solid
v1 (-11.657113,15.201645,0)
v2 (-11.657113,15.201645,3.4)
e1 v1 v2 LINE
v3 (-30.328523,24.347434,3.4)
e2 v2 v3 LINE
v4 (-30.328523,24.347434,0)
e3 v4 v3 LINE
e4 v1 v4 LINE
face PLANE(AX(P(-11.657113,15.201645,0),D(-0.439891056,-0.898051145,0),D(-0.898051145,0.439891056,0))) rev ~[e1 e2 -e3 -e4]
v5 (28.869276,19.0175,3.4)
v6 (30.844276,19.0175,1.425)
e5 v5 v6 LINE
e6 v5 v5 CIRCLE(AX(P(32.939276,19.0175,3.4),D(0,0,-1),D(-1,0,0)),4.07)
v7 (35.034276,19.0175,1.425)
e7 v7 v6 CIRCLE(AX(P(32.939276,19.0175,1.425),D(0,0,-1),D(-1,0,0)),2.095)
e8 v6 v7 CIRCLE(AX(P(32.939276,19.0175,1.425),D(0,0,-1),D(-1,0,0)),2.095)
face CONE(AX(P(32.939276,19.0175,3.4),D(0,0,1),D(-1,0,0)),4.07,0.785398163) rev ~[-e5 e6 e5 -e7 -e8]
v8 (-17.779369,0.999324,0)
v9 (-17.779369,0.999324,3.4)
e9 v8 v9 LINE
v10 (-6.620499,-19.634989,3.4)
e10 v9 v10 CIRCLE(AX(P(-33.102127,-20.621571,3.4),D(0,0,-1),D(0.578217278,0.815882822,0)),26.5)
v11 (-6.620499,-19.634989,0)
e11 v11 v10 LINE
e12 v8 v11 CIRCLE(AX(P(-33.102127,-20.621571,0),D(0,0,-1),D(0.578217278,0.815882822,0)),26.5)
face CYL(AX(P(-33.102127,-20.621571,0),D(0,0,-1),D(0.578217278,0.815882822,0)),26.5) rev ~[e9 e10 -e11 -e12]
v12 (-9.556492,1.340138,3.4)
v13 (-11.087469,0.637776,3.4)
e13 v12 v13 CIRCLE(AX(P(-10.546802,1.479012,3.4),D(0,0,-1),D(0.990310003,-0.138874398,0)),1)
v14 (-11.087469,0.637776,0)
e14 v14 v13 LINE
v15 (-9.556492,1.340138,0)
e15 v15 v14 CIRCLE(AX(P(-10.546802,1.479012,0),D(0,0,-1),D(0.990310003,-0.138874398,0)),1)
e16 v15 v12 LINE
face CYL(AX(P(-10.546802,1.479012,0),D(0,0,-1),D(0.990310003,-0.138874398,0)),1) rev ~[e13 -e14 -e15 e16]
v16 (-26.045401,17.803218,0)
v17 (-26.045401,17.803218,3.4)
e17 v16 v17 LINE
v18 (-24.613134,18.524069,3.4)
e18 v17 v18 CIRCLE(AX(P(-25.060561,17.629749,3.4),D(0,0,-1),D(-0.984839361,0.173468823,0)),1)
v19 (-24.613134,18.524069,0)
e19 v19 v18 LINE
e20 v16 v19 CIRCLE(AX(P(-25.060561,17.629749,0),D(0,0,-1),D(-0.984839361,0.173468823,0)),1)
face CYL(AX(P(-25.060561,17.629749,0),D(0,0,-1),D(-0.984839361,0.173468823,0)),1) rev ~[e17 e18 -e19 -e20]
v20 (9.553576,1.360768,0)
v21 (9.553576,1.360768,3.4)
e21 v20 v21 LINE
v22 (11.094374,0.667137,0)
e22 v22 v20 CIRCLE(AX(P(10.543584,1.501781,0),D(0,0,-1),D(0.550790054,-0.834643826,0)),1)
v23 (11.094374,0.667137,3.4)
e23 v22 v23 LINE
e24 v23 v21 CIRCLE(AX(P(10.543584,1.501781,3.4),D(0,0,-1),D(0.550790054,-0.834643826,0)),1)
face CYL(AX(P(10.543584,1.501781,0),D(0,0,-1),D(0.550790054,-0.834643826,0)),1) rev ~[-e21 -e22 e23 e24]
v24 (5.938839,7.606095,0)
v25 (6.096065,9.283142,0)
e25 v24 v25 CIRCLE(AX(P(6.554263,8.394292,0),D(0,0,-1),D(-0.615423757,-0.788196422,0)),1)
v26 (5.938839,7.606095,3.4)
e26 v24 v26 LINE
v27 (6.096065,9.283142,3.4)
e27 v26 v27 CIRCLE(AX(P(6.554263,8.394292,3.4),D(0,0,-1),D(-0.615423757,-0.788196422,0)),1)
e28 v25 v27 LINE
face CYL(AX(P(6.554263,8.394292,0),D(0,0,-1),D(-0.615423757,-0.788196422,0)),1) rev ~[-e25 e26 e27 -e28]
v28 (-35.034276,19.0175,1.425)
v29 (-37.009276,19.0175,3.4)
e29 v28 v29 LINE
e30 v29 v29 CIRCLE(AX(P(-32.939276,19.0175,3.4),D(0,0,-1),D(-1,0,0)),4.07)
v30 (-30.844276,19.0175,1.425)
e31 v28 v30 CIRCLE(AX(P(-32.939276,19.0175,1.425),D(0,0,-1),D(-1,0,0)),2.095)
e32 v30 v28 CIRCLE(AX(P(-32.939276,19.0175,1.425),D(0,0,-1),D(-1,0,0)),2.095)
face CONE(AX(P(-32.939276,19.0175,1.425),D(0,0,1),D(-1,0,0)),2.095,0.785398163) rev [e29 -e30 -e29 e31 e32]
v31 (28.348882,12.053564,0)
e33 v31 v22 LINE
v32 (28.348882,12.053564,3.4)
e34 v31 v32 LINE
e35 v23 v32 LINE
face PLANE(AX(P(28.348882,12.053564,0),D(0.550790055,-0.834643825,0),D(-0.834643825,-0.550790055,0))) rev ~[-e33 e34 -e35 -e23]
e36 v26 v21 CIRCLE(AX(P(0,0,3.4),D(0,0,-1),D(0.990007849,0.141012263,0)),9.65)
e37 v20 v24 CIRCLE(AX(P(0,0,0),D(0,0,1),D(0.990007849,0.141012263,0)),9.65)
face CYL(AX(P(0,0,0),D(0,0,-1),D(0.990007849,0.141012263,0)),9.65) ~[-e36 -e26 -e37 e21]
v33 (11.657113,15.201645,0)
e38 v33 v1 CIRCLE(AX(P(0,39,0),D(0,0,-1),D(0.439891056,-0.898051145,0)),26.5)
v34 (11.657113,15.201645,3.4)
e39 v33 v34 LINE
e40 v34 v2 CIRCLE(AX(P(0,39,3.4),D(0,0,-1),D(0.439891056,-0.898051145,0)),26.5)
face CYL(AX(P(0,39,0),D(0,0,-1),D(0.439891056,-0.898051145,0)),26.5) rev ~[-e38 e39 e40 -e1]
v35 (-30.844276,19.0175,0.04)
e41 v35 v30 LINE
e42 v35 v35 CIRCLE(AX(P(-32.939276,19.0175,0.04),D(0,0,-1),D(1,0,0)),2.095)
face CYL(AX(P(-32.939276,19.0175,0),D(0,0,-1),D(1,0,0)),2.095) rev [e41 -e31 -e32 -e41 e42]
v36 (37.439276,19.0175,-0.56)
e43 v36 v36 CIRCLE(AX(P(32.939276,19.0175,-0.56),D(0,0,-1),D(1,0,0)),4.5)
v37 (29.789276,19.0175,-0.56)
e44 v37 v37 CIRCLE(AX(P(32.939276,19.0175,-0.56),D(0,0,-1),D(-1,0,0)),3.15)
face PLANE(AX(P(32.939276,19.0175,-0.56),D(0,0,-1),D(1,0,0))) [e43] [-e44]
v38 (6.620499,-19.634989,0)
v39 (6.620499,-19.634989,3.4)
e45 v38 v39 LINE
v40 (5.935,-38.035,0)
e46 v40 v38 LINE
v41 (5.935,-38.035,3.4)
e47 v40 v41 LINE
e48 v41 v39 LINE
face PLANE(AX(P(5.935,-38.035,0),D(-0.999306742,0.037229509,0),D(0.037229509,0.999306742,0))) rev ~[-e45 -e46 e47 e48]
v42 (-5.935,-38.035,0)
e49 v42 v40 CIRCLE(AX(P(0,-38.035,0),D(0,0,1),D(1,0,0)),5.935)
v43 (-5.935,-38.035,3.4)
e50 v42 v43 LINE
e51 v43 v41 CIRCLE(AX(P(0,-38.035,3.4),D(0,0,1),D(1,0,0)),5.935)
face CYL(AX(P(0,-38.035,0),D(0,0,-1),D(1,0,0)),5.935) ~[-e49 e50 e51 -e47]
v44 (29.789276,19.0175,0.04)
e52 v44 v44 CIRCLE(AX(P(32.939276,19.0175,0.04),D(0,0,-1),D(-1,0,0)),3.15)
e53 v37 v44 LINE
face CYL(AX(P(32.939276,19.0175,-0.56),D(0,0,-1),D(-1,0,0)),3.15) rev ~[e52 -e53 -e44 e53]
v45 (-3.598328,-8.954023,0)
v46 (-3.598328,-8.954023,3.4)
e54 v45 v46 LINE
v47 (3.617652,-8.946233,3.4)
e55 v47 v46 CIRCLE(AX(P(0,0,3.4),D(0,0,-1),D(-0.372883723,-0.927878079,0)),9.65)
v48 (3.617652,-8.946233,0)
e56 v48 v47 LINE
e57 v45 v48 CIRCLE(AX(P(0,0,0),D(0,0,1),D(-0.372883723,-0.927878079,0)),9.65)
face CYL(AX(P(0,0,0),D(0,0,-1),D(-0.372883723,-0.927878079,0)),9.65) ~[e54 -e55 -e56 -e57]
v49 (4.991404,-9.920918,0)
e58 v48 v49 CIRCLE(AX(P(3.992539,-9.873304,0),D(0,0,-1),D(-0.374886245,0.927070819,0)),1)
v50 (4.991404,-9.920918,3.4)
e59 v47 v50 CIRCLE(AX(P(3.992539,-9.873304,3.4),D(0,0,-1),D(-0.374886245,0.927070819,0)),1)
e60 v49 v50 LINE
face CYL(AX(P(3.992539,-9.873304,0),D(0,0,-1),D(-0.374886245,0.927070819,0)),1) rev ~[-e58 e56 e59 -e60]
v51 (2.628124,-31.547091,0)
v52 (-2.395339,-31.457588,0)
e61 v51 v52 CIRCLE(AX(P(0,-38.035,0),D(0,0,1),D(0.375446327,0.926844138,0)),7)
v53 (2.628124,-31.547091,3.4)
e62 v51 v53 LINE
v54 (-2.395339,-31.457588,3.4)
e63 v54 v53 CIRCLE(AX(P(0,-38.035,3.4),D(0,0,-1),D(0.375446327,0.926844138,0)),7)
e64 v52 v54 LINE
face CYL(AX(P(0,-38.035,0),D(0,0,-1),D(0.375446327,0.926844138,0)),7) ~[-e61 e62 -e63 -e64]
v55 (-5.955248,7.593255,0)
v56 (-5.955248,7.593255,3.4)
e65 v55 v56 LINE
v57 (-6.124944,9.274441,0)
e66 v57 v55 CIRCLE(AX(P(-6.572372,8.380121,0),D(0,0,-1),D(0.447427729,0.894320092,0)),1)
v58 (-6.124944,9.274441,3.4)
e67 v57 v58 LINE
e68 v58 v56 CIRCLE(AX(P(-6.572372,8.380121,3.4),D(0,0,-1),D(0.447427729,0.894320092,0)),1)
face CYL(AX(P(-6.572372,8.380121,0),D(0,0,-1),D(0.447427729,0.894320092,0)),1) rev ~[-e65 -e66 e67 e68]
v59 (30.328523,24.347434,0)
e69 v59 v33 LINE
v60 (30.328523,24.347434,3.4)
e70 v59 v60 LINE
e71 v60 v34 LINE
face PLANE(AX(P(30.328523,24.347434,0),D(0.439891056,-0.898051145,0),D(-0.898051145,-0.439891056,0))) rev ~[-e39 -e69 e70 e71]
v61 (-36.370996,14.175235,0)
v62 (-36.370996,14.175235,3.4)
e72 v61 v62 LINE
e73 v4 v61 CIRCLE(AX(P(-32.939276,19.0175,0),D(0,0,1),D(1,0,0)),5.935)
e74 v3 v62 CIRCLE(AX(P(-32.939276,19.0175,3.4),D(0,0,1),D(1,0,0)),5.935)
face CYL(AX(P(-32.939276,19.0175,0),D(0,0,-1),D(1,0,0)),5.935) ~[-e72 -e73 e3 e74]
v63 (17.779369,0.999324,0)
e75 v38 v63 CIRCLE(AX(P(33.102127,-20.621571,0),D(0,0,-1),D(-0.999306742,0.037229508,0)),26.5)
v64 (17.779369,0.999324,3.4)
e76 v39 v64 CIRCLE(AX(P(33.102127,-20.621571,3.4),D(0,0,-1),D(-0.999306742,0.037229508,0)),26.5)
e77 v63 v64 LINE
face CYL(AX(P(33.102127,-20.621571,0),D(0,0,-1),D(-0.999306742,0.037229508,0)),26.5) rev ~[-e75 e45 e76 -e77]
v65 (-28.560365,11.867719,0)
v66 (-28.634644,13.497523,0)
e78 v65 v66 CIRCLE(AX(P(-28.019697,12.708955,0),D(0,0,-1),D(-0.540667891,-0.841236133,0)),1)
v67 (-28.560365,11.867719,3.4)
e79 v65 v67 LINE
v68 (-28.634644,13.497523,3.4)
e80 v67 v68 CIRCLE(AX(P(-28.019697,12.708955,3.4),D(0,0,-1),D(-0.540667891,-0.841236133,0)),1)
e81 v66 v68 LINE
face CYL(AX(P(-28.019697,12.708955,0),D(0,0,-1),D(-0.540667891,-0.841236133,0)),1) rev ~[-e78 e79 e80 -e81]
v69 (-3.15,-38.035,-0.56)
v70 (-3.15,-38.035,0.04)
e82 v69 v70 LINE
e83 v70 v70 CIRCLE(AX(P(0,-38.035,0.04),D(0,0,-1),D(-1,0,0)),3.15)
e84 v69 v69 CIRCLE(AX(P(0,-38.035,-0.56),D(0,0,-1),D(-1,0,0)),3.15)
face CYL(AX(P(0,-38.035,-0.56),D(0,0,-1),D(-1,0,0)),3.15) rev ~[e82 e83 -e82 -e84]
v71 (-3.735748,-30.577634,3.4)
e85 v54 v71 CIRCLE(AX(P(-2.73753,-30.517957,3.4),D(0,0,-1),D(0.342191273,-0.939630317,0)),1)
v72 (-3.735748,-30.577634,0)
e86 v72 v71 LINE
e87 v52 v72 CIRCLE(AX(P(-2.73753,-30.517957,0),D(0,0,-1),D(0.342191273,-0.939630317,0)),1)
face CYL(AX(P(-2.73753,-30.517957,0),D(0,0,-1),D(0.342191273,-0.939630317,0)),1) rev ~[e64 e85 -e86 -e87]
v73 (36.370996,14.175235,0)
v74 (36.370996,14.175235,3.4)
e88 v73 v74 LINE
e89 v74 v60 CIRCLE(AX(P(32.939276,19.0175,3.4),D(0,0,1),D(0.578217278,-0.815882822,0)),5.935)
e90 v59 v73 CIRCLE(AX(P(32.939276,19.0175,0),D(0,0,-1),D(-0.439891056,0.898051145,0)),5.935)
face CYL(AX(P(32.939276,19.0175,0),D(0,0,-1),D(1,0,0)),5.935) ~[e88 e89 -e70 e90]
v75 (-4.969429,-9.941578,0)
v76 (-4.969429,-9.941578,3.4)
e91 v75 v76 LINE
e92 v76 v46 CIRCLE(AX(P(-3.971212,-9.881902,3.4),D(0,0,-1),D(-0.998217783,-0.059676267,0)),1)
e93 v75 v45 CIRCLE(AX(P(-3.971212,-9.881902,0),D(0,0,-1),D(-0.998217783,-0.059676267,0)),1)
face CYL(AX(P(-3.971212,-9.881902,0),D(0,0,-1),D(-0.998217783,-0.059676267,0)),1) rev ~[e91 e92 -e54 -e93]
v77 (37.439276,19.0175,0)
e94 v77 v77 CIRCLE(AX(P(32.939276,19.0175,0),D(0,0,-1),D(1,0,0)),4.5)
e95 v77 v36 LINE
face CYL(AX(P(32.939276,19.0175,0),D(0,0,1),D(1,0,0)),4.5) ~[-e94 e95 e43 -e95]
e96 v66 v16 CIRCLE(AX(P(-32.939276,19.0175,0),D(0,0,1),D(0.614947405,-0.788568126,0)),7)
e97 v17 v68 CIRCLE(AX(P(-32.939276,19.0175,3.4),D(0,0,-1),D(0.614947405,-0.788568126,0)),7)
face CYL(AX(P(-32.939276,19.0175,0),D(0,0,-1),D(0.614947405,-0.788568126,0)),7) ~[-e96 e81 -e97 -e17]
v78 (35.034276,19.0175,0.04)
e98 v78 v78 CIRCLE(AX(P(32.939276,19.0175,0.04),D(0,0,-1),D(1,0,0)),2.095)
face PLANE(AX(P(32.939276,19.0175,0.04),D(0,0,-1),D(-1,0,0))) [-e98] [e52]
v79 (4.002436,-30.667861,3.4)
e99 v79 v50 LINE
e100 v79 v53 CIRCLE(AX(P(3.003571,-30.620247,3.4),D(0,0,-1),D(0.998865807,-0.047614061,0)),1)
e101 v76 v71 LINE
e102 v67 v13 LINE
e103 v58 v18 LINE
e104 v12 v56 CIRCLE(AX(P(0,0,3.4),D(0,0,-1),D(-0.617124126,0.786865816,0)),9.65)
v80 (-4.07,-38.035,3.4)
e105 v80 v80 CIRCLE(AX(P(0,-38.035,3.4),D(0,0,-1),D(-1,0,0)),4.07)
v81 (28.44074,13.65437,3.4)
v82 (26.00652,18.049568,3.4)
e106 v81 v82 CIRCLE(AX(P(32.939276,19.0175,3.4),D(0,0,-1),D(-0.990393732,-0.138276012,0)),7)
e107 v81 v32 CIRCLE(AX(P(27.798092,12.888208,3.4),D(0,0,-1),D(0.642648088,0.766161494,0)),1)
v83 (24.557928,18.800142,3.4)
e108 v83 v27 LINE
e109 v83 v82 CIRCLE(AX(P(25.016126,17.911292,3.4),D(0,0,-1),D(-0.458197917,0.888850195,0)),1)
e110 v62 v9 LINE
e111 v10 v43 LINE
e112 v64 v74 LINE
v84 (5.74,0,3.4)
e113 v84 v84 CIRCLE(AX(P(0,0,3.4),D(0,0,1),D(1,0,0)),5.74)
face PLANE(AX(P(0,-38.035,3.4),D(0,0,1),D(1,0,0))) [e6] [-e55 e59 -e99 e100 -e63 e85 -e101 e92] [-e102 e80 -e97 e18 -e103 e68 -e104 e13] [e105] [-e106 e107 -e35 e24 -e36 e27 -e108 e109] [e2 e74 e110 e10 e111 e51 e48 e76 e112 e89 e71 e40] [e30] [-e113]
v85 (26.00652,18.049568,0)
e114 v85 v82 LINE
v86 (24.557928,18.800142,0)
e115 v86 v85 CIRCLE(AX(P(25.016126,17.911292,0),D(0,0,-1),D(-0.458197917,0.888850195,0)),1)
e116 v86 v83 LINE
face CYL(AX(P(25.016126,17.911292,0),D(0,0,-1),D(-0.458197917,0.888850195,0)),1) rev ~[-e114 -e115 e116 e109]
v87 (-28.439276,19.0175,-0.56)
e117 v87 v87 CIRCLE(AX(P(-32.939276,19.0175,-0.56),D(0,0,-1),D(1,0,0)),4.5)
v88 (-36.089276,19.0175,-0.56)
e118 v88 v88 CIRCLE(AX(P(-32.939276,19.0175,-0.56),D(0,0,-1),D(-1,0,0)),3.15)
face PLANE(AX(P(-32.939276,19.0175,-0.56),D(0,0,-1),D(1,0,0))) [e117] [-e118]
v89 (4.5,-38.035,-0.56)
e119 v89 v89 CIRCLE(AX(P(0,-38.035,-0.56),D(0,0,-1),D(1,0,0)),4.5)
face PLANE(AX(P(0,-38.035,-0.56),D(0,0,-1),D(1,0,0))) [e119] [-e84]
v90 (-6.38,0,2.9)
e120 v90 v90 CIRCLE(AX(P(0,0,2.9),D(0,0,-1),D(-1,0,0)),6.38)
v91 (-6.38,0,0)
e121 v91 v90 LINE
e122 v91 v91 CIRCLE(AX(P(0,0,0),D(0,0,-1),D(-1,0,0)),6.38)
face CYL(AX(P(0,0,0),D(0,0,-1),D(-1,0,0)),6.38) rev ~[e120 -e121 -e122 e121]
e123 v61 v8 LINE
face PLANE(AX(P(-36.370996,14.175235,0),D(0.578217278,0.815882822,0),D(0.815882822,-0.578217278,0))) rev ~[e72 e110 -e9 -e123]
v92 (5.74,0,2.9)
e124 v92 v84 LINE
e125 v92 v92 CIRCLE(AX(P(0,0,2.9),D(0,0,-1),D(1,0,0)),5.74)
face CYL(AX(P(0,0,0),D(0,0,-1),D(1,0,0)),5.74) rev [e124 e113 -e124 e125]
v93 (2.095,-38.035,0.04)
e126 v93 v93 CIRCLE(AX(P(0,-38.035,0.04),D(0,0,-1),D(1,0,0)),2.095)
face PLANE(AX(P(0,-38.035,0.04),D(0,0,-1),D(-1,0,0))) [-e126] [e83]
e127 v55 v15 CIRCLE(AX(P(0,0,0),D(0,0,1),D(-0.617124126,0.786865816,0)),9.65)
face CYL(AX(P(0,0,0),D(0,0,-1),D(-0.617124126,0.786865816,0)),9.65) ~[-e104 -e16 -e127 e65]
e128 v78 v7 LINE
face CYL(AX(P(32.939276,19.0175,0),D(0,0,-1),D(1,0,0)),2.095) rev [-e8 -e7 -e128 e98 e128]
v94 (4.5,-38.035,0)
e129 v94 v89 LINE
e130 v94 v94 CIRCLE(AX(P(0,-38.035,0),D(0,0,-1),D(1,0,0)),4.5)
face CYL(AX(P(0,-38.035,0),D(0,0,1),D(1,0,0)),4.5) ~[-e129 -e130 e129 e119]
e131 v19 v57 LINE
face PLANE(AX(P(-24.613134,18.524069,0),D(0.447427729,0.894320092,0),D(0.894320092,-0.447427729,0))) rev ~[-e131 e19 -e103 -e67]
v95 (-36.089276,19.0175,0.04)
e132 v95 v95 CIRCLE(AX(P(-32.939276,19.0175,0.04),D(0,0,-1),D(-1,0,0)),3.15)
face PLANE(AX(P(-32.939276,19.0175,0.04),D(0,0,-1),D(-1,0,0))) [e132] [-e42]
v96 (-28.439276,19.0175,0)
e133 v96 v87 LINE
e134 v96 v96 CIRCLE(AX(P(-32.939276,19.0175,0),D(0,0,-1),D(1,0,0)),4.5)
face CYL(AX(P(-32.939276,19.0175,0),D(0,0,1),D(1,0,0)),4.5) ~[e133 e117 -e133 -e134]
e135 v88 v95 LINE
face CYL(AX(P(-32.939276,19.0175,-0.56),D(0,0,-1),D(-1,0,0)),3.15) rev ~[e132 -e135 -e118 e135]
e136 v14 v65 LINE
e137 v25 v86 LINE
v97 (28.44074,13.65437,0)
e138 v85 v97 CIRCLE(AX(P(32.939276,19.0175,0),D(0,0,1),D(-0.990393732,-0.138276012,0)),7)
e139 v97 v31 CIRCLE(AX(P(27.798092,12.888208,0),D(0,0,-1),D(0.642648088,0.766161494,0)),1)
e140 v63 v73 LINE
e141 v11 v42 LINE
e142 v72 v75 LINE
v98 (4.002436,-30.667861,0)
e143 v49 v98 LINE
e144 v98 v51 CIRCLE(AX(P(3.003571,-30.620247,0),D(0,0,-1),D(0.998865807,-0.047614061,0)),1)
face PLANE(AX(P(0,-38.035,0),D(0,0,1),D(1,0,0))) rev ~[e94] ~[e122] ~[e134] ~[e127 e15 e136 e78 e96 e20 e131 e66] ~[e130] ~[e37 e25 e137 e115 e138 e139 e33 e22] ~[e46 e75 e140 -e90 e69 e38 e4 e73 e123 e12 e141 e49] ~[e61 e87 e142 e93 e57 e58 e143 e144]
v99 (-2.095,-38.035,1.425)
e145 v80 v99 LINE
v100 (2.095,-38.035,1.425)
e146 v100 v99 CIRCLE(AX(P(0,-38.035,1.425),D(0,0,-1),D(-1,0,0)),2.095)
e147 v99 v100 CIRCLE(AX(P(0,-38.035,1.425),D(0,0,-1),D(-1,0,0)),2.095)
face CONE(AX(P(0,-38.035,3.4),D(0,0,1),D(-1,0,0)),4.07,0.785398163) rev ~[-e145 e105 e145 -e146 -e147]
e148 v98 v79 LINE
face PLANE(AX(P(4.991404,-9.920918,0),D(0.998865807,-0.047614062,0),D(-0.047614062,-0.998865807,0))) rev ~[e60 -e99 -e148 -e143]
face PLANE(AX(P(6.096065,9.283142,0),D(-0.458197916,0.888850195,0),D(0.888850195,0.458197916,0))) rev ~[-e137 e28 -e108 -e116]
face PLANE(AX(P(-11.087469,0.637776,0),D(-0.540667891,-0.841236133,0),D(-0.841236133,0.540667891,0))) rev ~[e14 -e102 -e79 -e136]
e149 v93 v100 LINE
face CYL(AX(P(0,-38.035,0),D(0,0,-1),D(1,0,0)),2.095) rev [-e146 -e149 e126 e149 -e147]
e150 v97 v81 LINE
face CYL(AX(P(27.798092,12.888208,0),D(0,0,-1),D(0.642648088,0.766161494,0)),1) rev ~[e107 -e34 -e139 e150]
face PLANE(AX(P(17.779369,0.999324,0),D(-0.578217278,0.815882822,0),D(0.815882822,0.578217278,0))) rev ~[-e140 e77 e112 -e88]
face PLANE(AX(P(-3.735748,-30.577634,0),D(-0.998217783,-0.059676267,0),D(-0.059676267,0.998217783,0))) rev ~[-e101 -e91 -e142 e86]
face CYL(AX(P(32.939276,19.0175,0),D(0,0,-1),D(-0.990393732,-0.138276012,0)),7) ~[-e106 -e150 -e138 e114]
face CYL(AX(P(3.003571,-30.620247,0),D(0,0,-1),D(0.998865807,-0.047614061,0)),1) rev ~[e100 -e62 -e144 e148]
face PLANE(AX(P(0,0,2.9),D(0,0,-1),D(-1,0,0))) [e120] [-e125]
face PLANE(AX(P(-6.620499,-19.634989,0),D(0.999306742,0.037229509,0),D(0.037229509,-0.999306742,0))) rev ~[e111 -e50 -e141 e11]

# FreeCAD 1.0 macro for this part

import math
import FreeCAD as App
import Part
import Sketcher
Q = App.Units.Quantity


def add_polygon(sketch, points):
    """Adds a closed chain of lines whose ends are joined by coincident constraints."""
    first, n = sketch.GeometryCount, len(points)
    for a, b in zip(points, points[1:] + points[:1]):
        sketch.addGeometry(Part.LineSegment(App.Vector(*a, 0), App.Vector(*b, 0)), False)
    for i in range(n):
        sketch.addConstraint(Sketcher.Constraint("Coincident", first + i, 2, first + (i + 1) % n, 1))

doc = App.newDocument("Part")
body = doc.addObject("PartDesign::Body", "Body")

sketch1 = body.newObject("Sketcher::SketchObject", "Sketch")
sketch1.AttachmentSupport = (doc.getObject("XY_Plane"), [""])
sketch1.MapMode = "FlatFace"
sketch1.addGeometry(Part.ArcOfCircle(Part.Circle(App.Vector(-32.9, 19, 0), App.Vector(0, 0, 1), 5.9), math.radians(64), math.radians(235)), False)
sketch1.addGeometry(Part.LineSegment(App.Vector(-36.4, 14.2, 0), App.Vector(-17.8, 1, 0)), False)
sketch1.addGeometry(Part.ArcOfCircle(Part.Circle(App.Vector(-33.1, -20.6, 0), App.Vector(0, 0, 1), 26.5), math.radians(2), math.radians(55)), False)
sketch1.addGeometry(Part.LineSegment(App.Vector(-6.6, -19.6, 0), App.Vector(-5.9, -38, 0)), False)
sketch1.addGeometry(Part.ArcOfCircle(Part.Circle(App.Vector(0, -38, 0), App.Vector(0, 0, 1), 5.9), math.radians(180), math.radians(360)), False)
sketch1.addGeometry(Part.LineSegment(App.Vector(5.9, -38, 0), App.Vector(6.6, -19.6, 0)), False)
sketch1.addGeometry(Part.ArcOfCircle(Part.Circle(App.Vector(33.1, -20.6, 0), App.Vector(0, 0, 1), 26.5), math.radians(125), math.radians(178)), False)
sketch1.addGeometry(Part.LineSegment(App.Vector(17.8, 1, 0), App.Vector(36.4, 14.2, 0)), False)
sketch1.addGeometry(Part.ArcOfCircle(Part.Circle(App.Vector(32.9, 19, 0), App.Vector(0, 0, 1), 5.9), math.radians(-55), math.radians(116)), False)
sketch1.addGeometry(Part.LineSegment(App.Vector(30.3, 24.3, 0), App.Vector(11.7, 15.2, 0)), False)
sketch1.addGeometry(Part.ArcOfCircle(Part.Circle(App.Vector(0, 39, 0), App.Vector(0, 0, 1), 26.5), math.radians(-116), math.radians(-64)), False)
sketch1.addGeometry(Part.LineSegment(App.Vector(-11.7, 15.2, 0), App.Vector(-30.3, 24.3, 0)), False)
sketch1.addGeometry(Part.Circle(App.Vector(-32.9, 19, 0), App.Vector(0, 0, 1), 2.1), False)
sketch1.addGeometry(Part.Circle(App.Vector(0, 0, 0), App.Vector(0, 0, 1), 5.7), False)
sketch1.addGeometry(Part.Circle(App.Vector(0, -38, 0), App.Vector(0, 0, 1), 2.1), False)
sketch1.addGeometry(Part.Circle(App.Vector(32.9, 19, 0), App.Vector(0, 0, 1), 2.1), False)
sketch1.addConstraint(Sketcher.Constraint("Tangent", 0, 2, 1, 1))
sketch1.addConstraint(Sketcher.Constraint("Tangent", 1, 2, 2, 2))
sketch1.addConstraint(Sketcher.Constraint("Tangent", 2, 1, 3, 1))
sketch1.addConstraint(Sketcher.Constraint("Coincident", 3, 2, 4, 1))
sketch1.addConstraint(Sketcher.Constraint("Coincident", 4, 2, 5, 1))
sketch1.addConstraint(Sketcher.Constraint("Tangent", 5, 2, 6, 2))
sketch1.addConstraint(Sketcher.Constraint("Tangent", 6, 1, 7, 1))
sketch1.addConstraint(Sketcher.Constraint("Tangent", 7, 2, 8, 1))
sketch1.addConstraint(Sketcher.Constraint("Tangent", 8, 2, 9, 1))
sketch1.addConstraint(Sketcher.Constraint("Tangent", 9, 2, 10, 2))
sketch1.addConstraint(Sketcher.Constraint("Tangent", 10, 1, 11, 1))
sketch1.addConstraint(Sketcher.Constraint("Tangent", 11, 2, 0, 1))
sketch1.addConstraint(Sketcher.Constraint("Coincident", 13, 3, -1, 1))
sketch1.addConstraint(Sketcher.Constraint("Coincident", 12, 3, 0, 3))
sketch1.addConstraint(Sketcher.Constraint("Coincident", 14, 3, 4, 3))
sketch1.addConstraint(Sketcher.Constraint("Coincident", 15, 3, 8, 3))
sketch1.addConstraint(Sketcher.Constraint("Equal", 0, 4))
sketch1.addConstraint(Sketcher.Constraint("Equal", 2, 6))
sketch1.addConstraint(Sketcher.Constraint("Equal", 4, 8))
sketch1.addConstraint(Sketcher.Constraint("Equal", 6, 10))
sketch1.addConstraint(Sketcher.Constraint("Equal", 12, 14))
sketch1.addConstraint(Sketcher.Constraint("Equal", 14, 15))
sketch1.addConstraint(Sketcher.Constraint("Symmetric", 2, 3, 6, 3, -2))
sketch1.addConstraint(Sketcher.Constraint("Symmetric", 0, 3, 8, 3, -2))
sketch1.addConstraint(Sketcher.Constraint("Symmetric", 3, 2, 4, 2, -2))
sketch1.addConstraint(Sketcher.Constraint("PointOnObject", 10, 3, -2))
sketch1.addConstraint(Sketcher.Constraint("Horizontal", 14, 3, 3, 2))
sketch1.addConstraint(Sketcher.Constraint("Radius", 2, Q("26.5 mm")))
sketch1.addConstraint(Sketcher.Constraint("Diameter", 12, Q("4.19 mm")))
sketch1.addConstraint(Sketcher.Constraint("Diameter", 13, Q("11.48 mm")))
sketch1.addConstraint(Sketcher.Constraint("DistanceY", -1, 1, 10, 3, Q("39 mm")))
sketch1.addConstraint(Sketcher.Constraint("Radius", 0, Q("5.935 mm")))
sketch1.addConstraint(Sketcher.Constraint("DistanceY", 4, 3, -1, 1, Q("38.035 mm")))
sketch1.addConstraint(Sketcher.Constraint("DistanceY", -1, 1, 0, 3, Q("19.0175 mm")))
sketch1.addConstraint(Sketcher.Constraint("DistanceX", 2, 1, -1, 1, Q("6.620499 mm")))
sketch1.addConstraint(Sketcher.Constraint("DistanceY", 7, 2, 8, 2, Q("10.172198 mm")))
sketch1.addConstraint(Sketcher.Constraint("Distance", 1, Q("22.787128 mm")))
pad1 = body.newObject("PartDesign::Pad", "Pad")
pad1.Profile = sketch1
pad1.Length = 3.4

sketch2 = body.newObject("Sketcher::SketchObject", "Sketch001")
sketch2.AttachmentSupport = (doc.getObject("XY_Plane"), [""])
sketch2.MapMode = "FlatFace"
sketch2.addGeometry(Part.Circle(App.Vector(0, 0, 0), App.Vector(0, 0, 1), 6), False)
sketch2.addConstraint(Sketcher.Constraint("Coincident", 0, 3, -1, 1))
sketch2.addConstraint(Sketcher.Constraint("Diameter", 0, Q("12.76 mm")))
pocket1 = body.newObject("PartDesign::Pocket", "Pocket")
pocket1.Profile = sketch2
pocket1.Length = 2.9
pocket1.Reversed = True

sketch3 = body.newObject("Sketcher::SketchObject", "Sketch002")
sketch3.AttachmentSupport = (doc.getObject("XY_Plane"), [""])
sketch3.MapMode = "FlatFace"
sketch3.addGeometry(Part.Circle(App.Vector(0, -38, 0), App.Vector(0, 0, 1), 4.5), False)
sketch3.addGeometry(Part.Circle(App.Vector(-32.9, 19, 0), App.Vector(0, 0, 1), 4.5), False)
sketch3.addGeometry(Part.Circle(App.Vector(32.9, 19, 0), App.Vector(0, 0, 1), 4.5), False)
sketch3.addConstraint(Sketcher.Constraint("Equal", 0, 1))
sketch3.addConstraint(Sketcher.Constraint("Equal", 1, 2))
sketch3.addConstraint(Sketcher.Constraint("Symmetric", 1, 3, 2, 3, -2))
sketch3.addConstraint(Sketcher.Constraint("PointOnObject", 0, 3, -2))
sketch3.addConstraint(Sketcher.Constraint("Diameter", 0, Q("9 mm")))
sketch3.addConstraint(Sketcher.Constraint("DistanceY", 0, 3, -1, 1, Q("38.035 mm")))
sketch3.addConstraint(Sketcher.Constraint("DistanceY", -1, 1, 1, 3, Q("19.0175 mm")))
sketch3.addConstraint(Sketcher.Constraint("DistanceX", 1, 3, -1, 1, Q("32.939276 mm")))
pad2 = body.newObject("PartDesign::Pad", "Pad001")
pad2.Profile = sketch3
pad2.Length = 0.56
pad2.Reversed = True

sketch4 = body.newObject("Sketcher::SketchObject", "Sketch003")
sketch4.AttachmentSupport = (doc.getObject("XY_Plane"), [""])
sketch4.MapMode = "FlatFace"
sketch4.AttachmentOffset = App.Placement(App.Vector(0, 0, -0.56), App.Rotation())
sketch4.addGeometry(Part.Circle(App.Vector(0, -38, 0), App.Vector(0, 0, 1), 3.1), False)
sketch4.addConstraint(Sketcher.Constraint("PointOnObject", 0, 3, -2))
sketch4.addConstraint(Sketcher.Constraint("Diameter", 0, Q("6.3 mm")))
sketch4.addConstraint(Sketcher.Constraint("DistanceY", 0, 3, -1, 1, Q("38.035 mm")))
pocket2 = body.newObject("PartDesign::Pocket", "Pocket001")
pocket2.Profile = sketch4
pocket2.Length = 0.6
pocket2.Reversed = True

sketch5 = body.newObject("Sketcher::SketchObject", "Sketch004")
sketch5.AttachmentSupport = (doc.getObject("XY_Plane"), [""])
sketch5.MapMode = "FlatFace"
sketch5.AttachmentOffset = App.Placement(App.Vector(0, 0, -0.56), App.Rotation())
sketch5.addGeometry(Part.Circle(App.Vector(32.9, 19, 0), App.Vector(0, 0, 1), 3.1), False)
sketch5.addConstraint(Sketcher.Constraint("Diameter", 0, Q("6.3 mm")))
sketch5.addConstraint(Sketcher.Constraint("DistanceY", -1, 1, 0, 3, Q("19.0175 mm")))
sketch5.addConstraint(Sketcher.Constraint("DistanceX", -1, 1, 0, 3, Q("32.939276 mm")))
pocket3 = body.newObject("PartDesign::Pocket", "Pocket002")
pocket3.Profile = sketch5
pocket3.Length = 0.6
pocket3.Reversed = True

sketch6 = body.newObject("Sketcher::SketchObject", "Sketch005")
sketch6.AttachmentSupport = (doc.getObject("XY_Plane"), [""])
sketch6.MapMode = "FlatFace"
sketch6.AttachmentOffset = App.Placement(App.Vector(0, 0, -0.56), App.Rotation())
sketch6.addGeometry(Part.Circle(App.Vector(-32.9, 19, 0), App.Vector(0, 0, 1), 3.1), False)
sketch6.addConstraint(Sketcher.Constraint("Diameter", 0, Q("6.3 mm")))
sketch6.addConstraint(Sketcher.Constraint("DistanceY", -1, 1, 0, 3, Q("19.0175 mm")))
sketch6.addConstraint(Sketcher.Constraint("DistanceX", 0, 3, -1, 1, Q("32.939276 mm")))
pocket4 = body.newObject("PartDesign::Pocket", "Pocket003")
pocket4.Profile = sketch6
pocket4.Length = 0.6
pocket4.Reversed = True

sketch7 = body.newObject("Sketcher::SketchObject", "Sketch006")
sketch7.AttachmentSupport = (doc.getObject("XZ_Plane"), [""])
sketch7.MapMode = "FlatFace"
sketch7.AttachmentOffset = App.Placement(App.Vector(0, 0, -19.0175), App.Rotation())
add_polygon(sketch7, [(-35, 1.4), (-35, 3.4), (-37, 3.4)])
sketch7.addGeometry(Part.LineSegment(App.Vector(-32.9, 3.4, 0), App.Vector(-32.9, 1.4, 0)), True)
sketch7.addConstraint(Sketcher.Constraint("Vertical", 0))
sketch7.addConstraint(Sketcher.Constraint("Horizontal", 1))
sketch7.addConstraint(Sketcher.Constraint("Vertical", 3))
sketch7.addConstraint(Sketcher.Constraint("Horizontal", 1, 2, 3, 1))
sketch7.addConstraint(Sketcher.Constraint("Horizontal", 2, 2, 3, 2))
sketch7.addConstraint(Sketcher.Constraint("Equal", 1, 0))
sketch7.addConstraint(Sketcher.Constraint("DistanceY", -1, 1, 0, 2, Q("3.4 mm")))
sketch7.addConstraint(Sketcher.Constraint("DistanceX", 1, 2, 1, 1, Q("1.975 mm")))
sketch7.addConstraint(Sketcher.Constraint("DistanceX", 1, 2, 3, 1, Q("4.07 mm")))
sketch7.addConstraint(Sketcher.Constraint("DistanceX", 0, 2, -1, 1, Q("35.034276 mm")))
groove = body.newObject("PartDesign::Groove", "Groove")
groove.Profile = sketch7
groove.ReferenceAxis = (sketch7, ["Axis0"])
groove.Angle = 360

sketch8 = body.newObject("Sketcher::SketchObject", "Sketch007")
sketch8.Placement = App.Placement(App.Vector(16.469638, -9.50875, 0), App.Rotation(App.Vector(0, 0, 1), App.Vector(0.5, 0.866025404, 0), App.Vector(-0.866025404, 0.5, 0), "ZXY"))
add_polygon(sketch8, [(3.4, 35), (3.4, 37), (1.4, 35)])
sketch8.addGeometry(Part.LineSegment(App.Vector(3.4, 32.9, 0), App.Vector(1.4, 32.9, 0)), True)
sketch8.addConstraint(Sketcher.Constraint("Vertical", 0))
sketch8.addConstraint(Sketcher.Constraint("Horizontal", 2))
sketch8.addConstraint(Sketcher.Constraint("Horizontal", 3))
sketch8.addConstraint(Sketcher.Constraint("Vertical", 2, 2, 3, 1))
sketch8.addConstraint(Sketcher.Constraint("Vertical", 1, 2, 3, 2))
sketch8.addConstraint(Sketcher.Constraint("Equal", 3, 0))
sketch8.addConstraint(Sketcher.Constraint("DistanceX", -1, 1, 0, 2, Q("3.4 mm")))
sketch8.addConstraint(Sketcher.Constraint("DistanceX", 2, 1, 2, 2, Q("1.975 mm")))
sketch8.addConstraint(Sketcher.Constraint("DistanceY", 3, 1, 0, 2, Q("4.07 mm")))
sketch8.addConstraint(Sketcher.Constraint("DistanceY", -1, 1, 0, 2, Q("37.009276 mm")))
groove2 = body.newObject("PartDesign::Groove", "Groove001")
groove2.Profile = sketch8
groove2.ReferenceAxis = (sketch8, ["Axis0"])
groove2.Angle = 360

sketch9 = body.newObject("Sketcher::SketchObject", "Sketch008")
sketch9.Placement = App.Placement(App.Vector(16.469638, -9.50875, 0), App.Rotation(App.Vector(0, 0, 1), App.Vector(0.5, 0.866025404, 0), App.Vector(-0.866025404, 0.5, 0), "ZXY"))
add_polygon(sketch9, [(3.4, -30.8), (3.4, -28.9), (1.4, -30.8)])
sketch9.addGeometry(Part.LineSegment(App.Vector(3.4, -32.9, 0), App.Vector(1.4, -32.9, 0)), True)
sketch9.addConstraint(Sketcher.Constraint("Vertical", 0))
sketch9.addConstraint(Sketcher.Constraint("Horizontal", 2))
sketch9.addConstraint(Sketcher.Constraint("Horizontal", 3))
sketch9.addConstraint(Sketcher.Constraint("Vertical", 2, 2, 3, 1))
sketch9.addConstraint(Sketcher.Constraint("Vertical", 1, 2, 3, 2))
sketch9.addConstraint(Sketcher.Constraint("Equal", 3, 0))
sketch9.addConstraint(Sketcher.Constraint("DistanceX", -1, 1, 0, 2, Q("3.4 mm")))
sketch9.addConstraint(Sketcher.Constraint("DistanceX", 2, 1, 2, 2, Q("1.975 mm")))
sketch9.addConstraint(Sketcher.Constraint("DistanceY", 3, 1, 0, 2, Q("4.07 mm")))
sketch9.addConstraint(Sketcher.Constraint("DistanceY", 0, 2, -1, 1, Q("28.869276 mm")))
groove3 = body.newObject("PartDesign::Groove", "Groove002")
groove3.Profile = sketch9
groove3.ReferenceAxis = (sketch9, ["Axis0"])
groove3.Angle = 360

sketch10 = body.newObject("Sketcher::SketchObject", "Sketch009")
sketch10.AttachmentSupport = (doc.getObject("XY_Plane"), [""])
sketch10.MapMode = "FlatFace"
sketch10.addGeometry(Part.LineSegment(App.Vector(5, -9.9, 0), App.Vector(4, -30.7, 0)), False)
sketch10.addGeometry(Part.ArcOfCircle(Part.Circle(App.Vector(3, -30.6, 0), App.Vector(0, 0, 1), 1), math.radians(-112), math.radians(-3)), False)
sketch10.addGeometry(Part.ArcOfCircle(Part.Circle(App.Vector(0, -38, 0), App.Vector(0, 0, 1), 7), math.radians(68), math.radians(110)), False)
sketch10.addGeometry(Part.ArcOfCircle(Part.Circle(App.Vector(-2.7, -30.5, 0), App.Vector(0, 0, 1), 1), math.radians(-177), math.radians(-70)), False)
sketch10.addGeometry(Part.LineSegment(App.Vector(-3.7, -30.6, 0), App.Vector(-5, -9.9, 0)), False)
sketch10.addGeometry(Part.ArcOfCircle(Part.Circle(App.Vector(-4, -9.9, 0), App.Vector(0, 0, 1), 1), math.radians(68), math.radians(183)), False)
sketch10.addGeometry(Part.ArcOfCircle(Part.Circle(App.Vector(0, 0, 0), App.Vector(0, 0, 1), 9.6), math.radians(-112), math.radians(-68)), False)
sketch10.addGeometry(Part.ArcOfCircle(Part.Circle(App.Vector(4, -9.9, 0), App.Vector(0, 0, 1), 1), math.radians(-3), math.radians(112)), False)
sketch10.addGeometry(Part.LineSegment(App.Vector(6.1, 9.3, 0), App.Vector(24.6, 18.8, 0)), False)
sketch10.addGeometry(Part.ArcOfCircle(Part.Circle(App.Vector(25, 17.9, 0), App.Vector(0, 0, 1), 1), math.radians(8), math.radians(117)), False)
sketch10.addGeometry(Part.ArcOfCircle(Part.Circle(App.Vector(32.9, 19, 0), App.Vector(0, 0, 1), 7), math.radians(-172), math.radians(-130)), False)
sketch10.addGeometry(Part.ArcOfCircle(Part.Circle(App.Vector(27.8, 12.9, 0), App.Vector(0, 0, 1), 1), math.radians(-57), math.radians(50)), False)
sketch10.addGeometry(Part.LineSegment(App.Vector(28.3, 12.1, 0), App.Vector(11.1, 0.7, 0)), False)
sketch10.addGeometry(Part.ArcOfCircle(Part.Circle(App.Vector(10.5, 1.5, 0), App.Vector(0, 0, 1), 1), math.radians(-172), math.radians(-57)), False)
sketch10.addGeometry(Part.ArcOfCircle(Part.Circle(App.Vector(0, 0, 0), App.Vector(0, 0, 1), 9.6), math.radians(8), math.radians(52)), False)
sketch10.addGeometry(Part.ArcOfCircle(Part.Circle(App.Vector(6.6, 8.4, 0), App.Vector(0, 0, 1), 1), math.radians(117), math.radians(232)), False)
sketch10.addGeometry(Part.LineSegment(App.Vector(-11.1, 0.6, 0), App.Vector(-28.6, 11.9, 0)), False)
sketch10.addGeometry(Part.ArcOfCircle(Part.Circle(App.Vector(-28, 12.7, 0), App.Vector(0, 0, 1), 1), math.radians(128), math.radians(237)), False)
sketch10.addGeometry(Part.ArcOfCircle(Part.Circle(App.Vector(-32.9, 19, 0), App.Vector(0, 0, 1), 7), math.radians(-52), math.radians(-10)), False)
sketch10.addGeometry(Part.ArcOfCircle(Part.Circle(App.Vector(-25.1, 17.6, 0), App.Vector(0, 0, 1), 1), math.radians(63), math.radians(170)), False)
sketch10.addGeometry(Part.LineSegment(App.Vector(-24.6, 18.5, 0), App.Vector(-6.1, 9.3, 0)), False)
sketch10.addGeometry(Part.ArcOfCircle(Part.Circle(App.Vector(-6.6, 8.4, 0), App.Vector(0, 0, 1), 1), math.radians(-52), math.radians(63)), False)
sketch10.addGeometry(Part.ArcOfCircle(Part.Circle(App.Vector(0, 0, 0), App.Vector(0, 0, 1), 9.6), math.radians(128), math.radians(172)), False)
sketch10.addGeometry(Part.ArcOfCircle(Part.Circle(App.Vector(-10.5, 1.5, 0), App.Vector(0, 0, 1), 1), math.radians(-123), math.radians(-8)), False)
sketch10.addConstraint(Sketcher.Constraint("Tangent", 0, 2, 1, 2))
sketch10.addConstraint(Sketcher.Constraint("Tangent", 1, 1, 2, 1))
sketch10.addConstraint(Sketcher.Constraint("Tangent", 2, 2, 3, 2))
sketch10.addConstraint(Sketcher.Constraint("Tangent", 3, 1, 4, 1))
sketch10.addConstraint(Sketcher.Constraint("Tangent", 4, 2, 5, 2))
sketch10.addConstraint(Sketcher.Constraint("Tangent", 5, 1, 6, 1))
sketch10.addConstraint(Sketcher.Constraint("Tangent", 6, 2, 7, 2))
sketch10.addConstraint(Sketcher.Constraint("Tangent", 7, 1, 0, 1))
sketch10.addConstraint(Sketcher.Constraint("Tangent", 8, 2, 9, 2))
sketch10.addConstraint(Sketcher.Constraint("Tangent", 9, 1, 10, 1))
sketch10.addConstraint(Sketcher.Constraint("Tangent", 10, 2, 11, 2))
sketch10.addConstraint(Sketcher.Constraint("Tangent", 11, 1, 12, 1))
sketch10.addConstraint(Sketcher.Constraint("Tangent", 12, 2, 13, 2))
sketch10.addConstraint(Sketcher.Constraint("Tangent", 13, 1, 14, 1))
sketch10.addConstraint(Sketcher.Constraint("Tangent", 14, 2, 15, 2))
sketch10.addConstraint(Sketcher.Constraint("Tangent", 15, 1, 8, 1))
sketch10.addConstraint(Sketcher.Constraint("Tangent", 16, 2, 17, 2))
sketch10.addConstraint(Sketcher.Constraint("Tangent", 17, 1, 18, 1))
sketch10.addConstraint(Sketcher.Constraint("Tangent", 18, 2, 19, 2))
sketch10.addConstraint(Sketcher.Constraint("Tangent", 19, 1, 20, 1))
sketch10.addConstraint(Sketcher.Constraint("Tangent", 20, 2, 21, 2))
sketch10.addConstraint(Sketcher.Constraint("Tangent", 21, 1, 22, 1))
sketch10.addConstraint(Sketcher.Constraint("Tangent", 22, 2, 23, 2))
sketch10.addConstraint(Sketcher.Constraint("Tangent", 23, 1, 16, 1))
sketch10.addConstraint(Sketcher.Constraint("Coincident", 6, 3, -1, 1))
sketch10.addConstraint(Sketcher.Constraint("Coincident", 14, 3, -1, 1))
sketch10.addConstraint(Sketcher.Constraint("Coincident", 22, 3, -1, 1))
sketch10.addConstraint(Sketcher.Constraint("Equal", 1, 3))
sketch10.addConstraint(Sketcher.Constraint("Equal", 3, 5))
sketch10.addConstraint(Sketcher.Constraint("Equal", 5, 7))
sketch10.addConstraint(Sketcher.Constraint("Equal", 7, 9))
sketch10.addConstraint(Sketcher.Constraint("Equal", 2, 10))
sketch10.addConstraint(Sketcher.Constraint("Equal", 9, 11))
sketch10.addConstraint(Sketcher.Constraint("Equal", 11, 13))
sketch10.addConstraint(Sketcher.Constraint("Equal", 6, 14))
sketch10.addConstraint(Sketcher.Constraint("Equal", 13, 15))
sketch10.addConstraint(Sketcher.Constraint("Equal", 15, 17))
sketch10.addConstraint(Sketcher.Constraint("Equal", 10, 18))
sketch10.addConstraint(Sketcher.Constraint("Equal", 17, 19))
sketch10.addConstraint(Sketcher.Constraint("Equal", 19, 21))
sketch10.addConstraint(Sketcher.Constraint("Equal", 14, 22))
sketch10.addConstraint(Sketcher.Constraint("Equal", 21, 23))
sketch10.addConstraint(Sketcher.Constraint("Symmetric", 10, 3, 18, 3, -2))
sketch10.addConstraint(Sketcher.Constraint("PointOnObject", 2, 3, -2))
sketch10.addConstraint(Sketcher.Constraint("Equal", 0, 8))
sketch10.addConstraint(Sketcher.Constraint("Equal", 4, 12))
sketch10.addConstraint(Sketcher.Constraint("Equal", 8, 16))
sketch10.addConstraint(Sketcher.Constraint("Equal", 12, 20))
sketch10.addConstraint(Sketcher.Constraint("Radius", 1, Q("1 mm")))
sketch10.addConstraint(Sketcher.Constraint("Radius", 2, Q("7 mm")))
sketch10.addConstraint(Sketcher.Constraint("Radius", 6, Q("9.65 mm")))
sketch10.addConstraint(Sketcher.Constraint("DistanceY", 2, 3, -1, 1, Q("38.035 mm")))
sketch10.addConstraint(Sketcher.Constraint("DistanceY", 15, 3, 9, 3, Q("9.517 mm")))
sketch10.addConstraint(Sketcher.Constraint("Distance", 0, Q("20.7705 mm")))
sketch10.addConstraint(Sketcher.Constraint("Distance", 4, Q("20.6729 mm")))
sketch10.addConstraint(Sketcher.Constraint("DistanceY", 5, 3, -1, 1, Q("9.881902 mm")))
sketch10.addConstraint(Sketcher.Constraint("DistanceY", -1, 1, 10, 3, Q("19.0175 mm")))
sketch10.addConstraint(Sketcher.Constraint("DistanceX", 23, 3, -1, 1, Q("10.546802 mm")))
sketch10.addConstraint(Sketcher.Constraint("DistanceX", 18, 2, -1, 1, Q("26.045401 mm")))
sketch10.addConstraint(Sketcher.Constraint("DistanceX", 3, 3, 1, 3, Q("5.741101 mm")))
sketch10.addConstraint(Sketcher.Constraint("DistanceY", 10, 2, 9, 1, Q("4.395198 mm")))
sketch10.addConstraint(Sketcher.Constraint("DistanceY", 16, 2, 18, 2, Q("5.935499 mm")))
pocket5 = body.newObject("PartDesign::Pocket", "Pocket004")
pocket5.Profile = sketch10
pocket5.Length = 10
pocket5.Reversed = True

doc.recompute()
